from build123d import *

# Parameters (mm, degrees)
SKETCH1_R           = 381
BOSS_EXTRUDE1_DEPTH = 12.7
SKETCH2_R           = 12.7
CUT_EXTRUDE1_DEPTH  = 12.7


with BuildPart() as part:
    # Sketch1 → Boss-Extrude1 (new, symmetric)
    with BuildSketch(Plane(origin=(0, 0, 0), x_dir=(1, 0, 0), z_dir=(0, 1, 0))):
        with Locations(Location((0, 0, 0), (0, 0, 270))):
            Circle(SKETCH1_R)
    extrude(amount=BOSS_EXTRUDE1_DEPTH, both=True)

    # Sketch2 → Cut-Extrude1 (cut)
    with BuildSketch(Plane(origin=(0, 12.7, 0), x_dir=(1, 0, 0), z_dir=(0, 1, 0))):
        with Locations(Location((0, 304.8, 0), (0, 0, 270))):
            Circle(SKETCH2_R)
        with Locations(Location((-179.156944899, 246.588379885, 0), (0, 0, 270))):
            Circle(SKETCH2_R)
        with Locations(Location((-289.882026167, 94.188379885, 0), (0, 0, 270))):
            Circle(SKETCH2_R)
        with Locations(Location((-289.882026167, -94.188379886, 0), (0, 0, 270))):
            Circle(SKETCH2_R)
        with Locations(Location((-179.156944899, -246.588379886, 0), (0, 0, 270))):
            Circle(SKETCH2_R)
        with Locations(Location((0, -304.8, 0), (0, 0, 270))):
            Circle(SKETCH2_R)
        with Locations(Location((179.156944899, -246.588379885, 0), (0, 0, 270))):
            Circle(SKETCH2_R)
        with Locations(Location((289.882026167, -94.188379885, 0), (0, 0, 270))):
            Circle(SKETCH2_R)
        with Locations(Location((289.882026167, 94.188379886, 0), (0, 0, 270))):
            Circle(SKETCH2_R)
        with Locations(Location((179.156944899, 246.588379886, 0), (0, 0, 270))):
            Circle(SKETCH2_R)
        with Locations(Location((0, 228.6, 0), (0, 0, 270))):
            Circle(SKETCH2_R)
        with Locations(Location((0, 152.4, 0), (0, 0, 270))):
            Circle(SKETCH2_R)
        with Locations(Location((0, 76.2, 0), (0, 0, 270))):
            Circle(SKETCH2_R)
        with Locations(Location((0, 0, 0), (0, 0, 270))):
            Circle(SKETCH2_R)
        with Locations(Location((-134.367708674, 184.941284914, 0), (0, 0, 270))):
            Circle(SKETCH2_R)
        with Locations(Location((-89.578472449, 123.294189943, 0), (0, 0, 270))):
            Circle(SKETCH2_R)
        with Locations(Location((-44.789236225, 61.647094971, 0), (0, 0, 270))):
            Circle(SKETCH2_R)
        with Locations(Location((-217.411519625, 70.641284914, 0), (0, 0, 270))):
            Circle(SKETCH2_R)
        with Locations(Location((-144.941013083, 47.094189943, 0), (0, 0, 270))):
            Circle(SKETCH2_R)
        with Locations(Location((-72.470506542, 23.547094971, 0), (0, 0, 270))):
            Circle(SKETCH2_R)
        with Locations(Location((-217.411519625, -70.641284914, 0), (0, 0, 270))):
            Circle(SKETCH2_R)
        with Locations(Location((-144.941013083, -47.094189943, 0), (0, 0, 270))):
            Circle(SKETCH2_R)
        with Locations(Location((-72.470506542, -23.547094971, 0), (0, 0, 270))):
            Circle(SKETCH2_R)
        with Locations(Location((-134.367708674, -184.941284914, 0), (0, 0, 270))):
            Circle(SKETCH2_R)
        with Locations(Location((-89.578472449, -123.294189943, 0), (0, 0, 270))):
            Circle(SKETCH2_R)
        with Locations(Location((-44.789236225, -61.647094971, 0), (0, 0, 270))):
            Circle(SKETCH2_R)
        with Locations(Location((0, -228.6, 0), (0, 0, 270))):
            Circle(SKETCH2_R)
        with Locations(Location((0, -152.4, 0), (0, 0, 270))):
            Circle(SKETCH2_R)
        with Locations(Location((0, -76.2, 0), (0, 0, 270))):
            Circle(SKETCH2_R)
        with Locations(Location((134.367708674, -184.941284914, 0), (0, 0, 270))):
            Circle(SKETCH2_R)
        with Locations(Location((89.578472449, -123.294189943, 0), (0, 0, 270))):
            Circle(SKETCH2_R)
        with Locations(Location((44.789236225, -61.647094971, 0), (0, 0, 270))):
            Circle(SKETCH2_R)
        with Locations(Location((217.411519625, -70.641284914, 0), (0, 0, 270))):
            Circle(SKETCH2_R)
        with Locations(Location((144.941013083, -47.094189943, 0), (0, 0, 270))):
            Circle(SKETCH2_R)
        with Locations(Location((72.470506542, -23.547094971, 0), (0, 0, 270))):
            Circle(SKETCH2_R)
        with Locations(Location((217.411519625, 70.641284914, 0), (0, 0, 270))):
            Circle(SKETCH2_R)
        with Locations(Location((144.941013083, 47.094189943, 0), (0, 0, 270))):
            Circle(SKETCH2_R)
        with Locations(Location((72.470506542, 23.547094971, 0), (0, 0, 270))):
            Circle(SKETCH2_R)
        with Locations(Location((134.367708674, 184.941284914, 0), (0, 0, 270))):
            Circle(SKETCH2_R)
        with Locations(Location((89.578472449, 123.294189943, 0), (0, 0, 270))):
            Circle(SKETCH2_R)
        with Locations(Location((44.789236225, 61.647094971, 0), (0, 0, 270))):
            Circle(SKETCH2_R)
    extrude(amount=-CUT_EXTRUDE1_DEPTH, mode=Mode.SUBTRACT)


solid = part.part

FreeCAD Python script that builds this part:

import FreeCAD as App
import Part
import Sketcher
from FreeCAD import Vector
Q = App.Units.Quantity

doc = App.newDocument("Part")
body = doc.addObject("PartDesign::Body", "Body")

# Sketch on XZ plane
sketch1 = body.newObject("Sketcher::SketchObject", "Sketch")
sketch1.AttachmentSupport = (doc.getObject("XZ_Plane"), [""])
sketch1.MapMode = "FlatFace"
sketch1.addGeometry(Part.Circle(Vector(0, 0, 0), Vector(0, 0, 1), 381), False)
sketch1.addConstraint([
    Sketcher.Constraint("Coincident", 0, 3, -1, 1),
    Sketcher.Constraint("Diameter", 0, Q("30 in")),
])
pad1 = body.newObject("PartDesign::Pad", "Pad")
pad1.Profile = sketch1
pad1.Length = Q("1 in")
pad1.Midplane = True

# Sketch on XZ plane
sketch2 = body.newObject("Sketcher::SketchObject", "Sketch001")
sketch2.AttachmentSupport = (doc.getObject("XZ_Plane"), [""])
sketch2.MapMode = "FlatFace"
sketch2.AttachmentOffset = App.Placement(Vector(0, 0, -0.5 * 25.4), App.Rotation())
sketch2.addGeometry([
    Part.Circle(Vector(0, -305, 0), Vector(0, 0, 1), 13),  # 0
    Part.Circle(Vector(-179, -247, 0), Vector(0, 0, 1), 13),  # 1
    Part.Circle(Vector(-290, -94, 0), Vector(0, 0, 1), 13),  # 2
    Part.Circle(Vector(-290, 94, 0), Vector(0, 0, 1), 13),  # 3
    Part.Circle(Vector(-179, 247, 0), Vector(0, 0, 1), 13),  # 4
    Part.Circle(Vector(0, 305, 0), Vector(0, 0, 1), 13),  # 5
    Part.Circle(Vector(179, 247, 0), Vector(0, 0, 1), 13),  # 6
    Part.Circle(Vector(290, 94, 0), Vector(0, 0, 1), 13),  # 7
    Part.Circle(Vector(290, -94, 0), Vector(0, 0, 1), 13),  # 8
    Part.Circle(Vector(179, -247, 0), Vector(0, 0, 1), 13),  # 9
    Part.Circle(Vector(0, -229, 0), Vector(0, 0, 1), 13),  # 10
    Part.Circle(Vector(0, -152, 0), Vector(0, 0, 1), 13),  # 11
    Part.Circle(Vector(0, -76, 0), Vector(0, 0, 1), 13),  # 12
    Part.Circle(Vector(0, 0, 0), Vector(0, 0, 1), 13),  # 13
    Part.Circle(Vector(-134, -185, 0), Vector(0, 0, 1), 13),  # 14
    Part.Circle(Vector(-90, -123, 0), Vector(0, 0, 1), 13),  # 15
    Part.Circle(Vector(-45, -62, 0), Vector(0, 0, 1), 13),  # 16
    Part.Circle(Vector(-217, -71, 0), Vector(0, 0, 1), 13),  # 17
    Part.Circle(Vector(-145, -47, 0), Vector(0, 0, 1), 13),  # 18
    Part.Circle(Vector(-72, -24, 0), Vector(0, 0, 1), 13),  # 19
    Part.Circle(Vector(-217, 71, 0), Vector(0, 0, 1), 13),  # 20
    Part.Circle(Vector(-145, 47, 0), Vector(0, 0, 1), 13),  # 21
    Part.Circle(Vector(-72, 24, 0), Vector(0, 0, 1), 13),  # 22
    Part.Circle(Vector(-134, 185, 0), Vector(0, 0, 1), 13),  # 23
    Part.Circle(Vector(-90, 123, 0), Vector(0, 0, 1), 13),  # 24
    Part.Circle(Vector(-45, 62, 0), Vector(0, 0, 1), 13),  # 25
    Part.Circle(Vector(0, 229, 0), Vector(0, 0, 1), 13),  # 26
    Part.Circle(Vector(0, 152, 0), Vector(0, 0, 1), 13),  # 27
    Part.Circle(Vector(0, 76, 0), Vector(0, 0, 1), 13),  # 28
    Part.Circle(Vector(134, 185, 0), Vector(0, 0, 1), 13),  # 29
    Part.Circle(Vector(90, 123, 0), Vector(0, 0, 1), 13),  # 30
    Part.Circle(Vector(45, 62, 0), Vector(0, 0, 1), 13),  # 31
    Part.Circle(Vector(217, 71, 0), Vector(0, 0, 1), 13),  # 32
    Part.Circle(Vector(145, 47, 0), Vector(0, 0, 1), 13),  # 33
    Part.Circle(Vector(72, 24, 0), Vector(0, 0, 1), 13),  # 34
    Part.Circle(Vector(217, -71, 0), Vector(0, 0, 1), 13),  # 35
    Part.Circle(Vector(145, -47, 0), Vector(0, 0, 1), 13),  # 36
    Part.Circle(Vector(72, -24, 0), Vector(0, 0, 1), 13),  # 37
    Part.Circle(Vector(134, -185, 0), Vector(0, 0, 1), 13),  # 38
    Part.Circle(Vector(90, -123, 0), Vector(0, 0, 1), 13),  # 39
    Part.Circle(Vector(45, -62, 0), Vector(0, 0, 1), 13),  # 40
], False)
sketch2.addConstraint([
    Sketcher.Constraint("Coincident", 13, 3, -1, 1),
    Sketcher.Constraint("Equal", 0, 1),
    Sketcher.Constraint("Equal", 1, 2),
    Sketcher.Constraint("Equal", 2, 3),
    Sketcher.Constraint("Equal", 3, 4),
    Sketcher.Constraint("Equal", 4, 5),
    Sketcher.Constraint("Equal", 5, 6),
    Sketcher.Constraint("Equal", 6, 7),
    Sketcher.Constraint("Equal", 7, 8),
    Sketcher.Constraint("Equal", 8, 9),
    Sketcher.Constraint("Equal", 9, 10),
    Sketcher.Constraint("Equal", 10, 11),
    Sketcher.Constraint("Equal", 11, 12),
    Sketcher.Constraint("Equal", 12, 13),
    Sketcher.Constraint("Equal", 13, 14),
    Sketcher.Constraint("Equal", 14, 15),
    Sketcher.Constraint("Equal", 15, 16),
    Sketcher.Constraint("Equal", 16, 17),
    Sketcher.Constraint("Equal", 17, 18),
    Sketcher.Constraint("Equal", 18, 19),
    Sketcher.Constraint("Equal", 19, 20),
    Sketcher.Constraint("Equal", 20, 21),
    Sketcher.Constraint("Equal", 21, 22),
    Sketcher.Constraint("Equal", 22, 23),
    Sketcher.Constraint("Equal", 23, 24),
    Sketcher.Constraint("Equal", 24, 25),
    Sketcher.Constraint("Equal", 25, 26),
    Sketcher.Constraint("Equal", 26, 27),
    Sketcher.Constraint("Equal", 27, 28),
    Sketcher.Constraint("Equal", 28, 29),
    Sketcher.Constraint("Equal", 29, 30),
    Sketcher.Constraint("Equal", 30, 31),
    Sketcher.Constraint("Equal", 31, 32),
    Sketcher.Constraint("Equal", 32, 33),
    Sketcher.Constraint("Equal", 33, 34),
    Sketcher.Constraint("Equal", 34, 35),
    Sketcher.Constraint("Equal", 35, 36),
    Sketcher.Constraint("Equal", 36, 37),
    Sketcher.Constraint("Equal", 37, 38),
    Sketcher.Constraint("Equal", 38, 39),
    Sketcher.Constraint("Equal", 39, 40),
    Sketcher.Constraint("Symmetric", 0, 3, 5, 3, -1, 1),
    Sketcher.Constraint("Symmetric", 1, 3, 6, 3, -1, 1),
    Sketcher.Constraint("Symmetric", 2, 3, 7, 3, -1, 1),
    Sketcher.Constraint("Symmetric", 3, 3, 8, 3, -1, 1),
    Sketcher.Constraint("Symmetric", 4, 3, 9, 3, -1, 1),
    Sketcher.Constraint("Symmetric", 10, 3, 26, 3, -1, 1),
    Sketcher.Constraint("Symmetric", 11, 3, 27, 3, -1, 1),
    Sketcher.Constraint("Symmetric", 12, 3, 28, 3, -1, 1),
    Sketcher.Constraint("Symmetric", 14, 3, 29, 3, -1, 1),
    Sketcher.Constraint("Symmetric", 15, 3, 30, 3, -1, 1),
    Sketcher.Constraint("Symmetric", 16, 3, 31, 3, -1, 1),
    Sketcher.Constraint("Symmetric", 17, 3, 32, 3, -1, 1),
    Sketcher.Constraint("Symmetric", 18, 3, 33, 3, -1, 1),
    Sketcher.Constraint("Symmetric", 19, 3, 34, 3, -1, 1),
    Sketcher.Constraint("Symmetric", 20, 3, 35, 3, -1, 1),
    Sketcher.Constraint("Symmetric", 21, 3, 36, 3, -1, 1),
    Sketcher.Constraint("Symmetric", 22, 3, 37, 3, -1, 1),
    Sketcher.Constraint("Symmetric", 23, 3, 38, 3, -1, 1),
    Sketcher.Constraint("Symmetric", 24, 3, 39, 3, -1, 1),
    Sketcher.Constraint("Symmetric", 25, 3, 40, 3, -1, 1),
    Sketcher.Constraint("Symmetric", 4, 3, 6, 3, -2),
    Sketcher.Constraint("Symmetric", 3, 3, 7, 3, -2),
    Sketcher.Constraint("Symmetric", 23, 3, 29, 3, -2),
    Sketcher.Constraint("Symmetric", 24, 3, 30, 3, -2),
    Sketcher.Constraint("Symmetric", 25, 3, 31, 3, -2),
    Sketcher.Constraint("Symmetric", 20, 3, 32, 3, -2),
    Sketcher.Constraint("Symmetric", 21, 3, 33, 3, -2),
    Sketcher.Constraint("Symmetric", 22, 3, 34, 3, -2),
    Sketcher.Constraint("PointOnObject", 0, 3, -2),
    Sketcher.Constraint("PointOnObject", 10, 3, -2),
    Sketcher.Constraint("PointOnObject", 11, 3, -2),
    Sketcher.Constraint("PointOnObject", 12, 3, -2),
    Sketcher.Constraint("Diameter", 0, Q("1 in")),
    Sketcher.Constraint("DistanceY", 0, 3, -1, 1, Q("12 in")),
    Sketcher.Constraint("DistanceY", 10, 3, -1, 1, Q("9 in")),
    Sketcher.Constraint("DistanceY", 11, 3, -1, 1, Q("6 in")),
    Sketcher.Constraint("DistanceY", 12, 3, -1, 1, Q("3 in")),
    Sketcher.Constraint("DistanceY", 1, 3, 2, 3, Q("6 in")),
    Sketcher.Constraint("DistanceY", 15, 3, 18, 3, Q("3 in")),
    Sketcher.Constraint("DistanceY", 14, 3, 17, 3, Q("4.5 in")),
    Sketcher.Constraint("DistanceY", 16, 3, 19, 3, Q("1.5 in")),
    Sketcher.Constraint("DistanceY", 1, 3, -1, 1, 246.58838),
    Sketcher.Constraint("DistanceX", 14, 3, -1, 1, 134.367709),
    Sketcher.Constraint("DistanceY", 15, 3, -1, 1, 123.29419),
    Sketcher.Constraint("DistanceX", 17, 3, -1, 1, 217.41152),
    Sketcher.Constraint("DistanceX", 2, 3, 1, 3, 110.725081),
    Sketcher.Constraint("DistanceX", 4, 3, 6, 3, 358.31389),
    Sketcher.Constraint("DistanceY", 14, 3, 16, 3, 123.29419),
    Sketcher.Constraint("DistanceX", 18, 3, 15, 3, 55.362541),
    Sketcher.Constraint("DistanceX", 19, 3, 16, 3, 27.68127),
    Sketcher.Constraint("DistanceY", 17, 3, 20, 3, 141.28257),
    Sketcher.Constraint("DistanceX", 25, 3, 30, 3, 134.367709),
    Sketcher.Constraint("DistanceX", 15, 3, -1, 1, 89.578472),
])
pocket1 = body.newObject("PartDesign::Pocket", "Pocket")
pocket1.Profile = sketch2
pocket1.Length = Q("0.5 in")
pocket1.Reversed = True

doc.recompute()
